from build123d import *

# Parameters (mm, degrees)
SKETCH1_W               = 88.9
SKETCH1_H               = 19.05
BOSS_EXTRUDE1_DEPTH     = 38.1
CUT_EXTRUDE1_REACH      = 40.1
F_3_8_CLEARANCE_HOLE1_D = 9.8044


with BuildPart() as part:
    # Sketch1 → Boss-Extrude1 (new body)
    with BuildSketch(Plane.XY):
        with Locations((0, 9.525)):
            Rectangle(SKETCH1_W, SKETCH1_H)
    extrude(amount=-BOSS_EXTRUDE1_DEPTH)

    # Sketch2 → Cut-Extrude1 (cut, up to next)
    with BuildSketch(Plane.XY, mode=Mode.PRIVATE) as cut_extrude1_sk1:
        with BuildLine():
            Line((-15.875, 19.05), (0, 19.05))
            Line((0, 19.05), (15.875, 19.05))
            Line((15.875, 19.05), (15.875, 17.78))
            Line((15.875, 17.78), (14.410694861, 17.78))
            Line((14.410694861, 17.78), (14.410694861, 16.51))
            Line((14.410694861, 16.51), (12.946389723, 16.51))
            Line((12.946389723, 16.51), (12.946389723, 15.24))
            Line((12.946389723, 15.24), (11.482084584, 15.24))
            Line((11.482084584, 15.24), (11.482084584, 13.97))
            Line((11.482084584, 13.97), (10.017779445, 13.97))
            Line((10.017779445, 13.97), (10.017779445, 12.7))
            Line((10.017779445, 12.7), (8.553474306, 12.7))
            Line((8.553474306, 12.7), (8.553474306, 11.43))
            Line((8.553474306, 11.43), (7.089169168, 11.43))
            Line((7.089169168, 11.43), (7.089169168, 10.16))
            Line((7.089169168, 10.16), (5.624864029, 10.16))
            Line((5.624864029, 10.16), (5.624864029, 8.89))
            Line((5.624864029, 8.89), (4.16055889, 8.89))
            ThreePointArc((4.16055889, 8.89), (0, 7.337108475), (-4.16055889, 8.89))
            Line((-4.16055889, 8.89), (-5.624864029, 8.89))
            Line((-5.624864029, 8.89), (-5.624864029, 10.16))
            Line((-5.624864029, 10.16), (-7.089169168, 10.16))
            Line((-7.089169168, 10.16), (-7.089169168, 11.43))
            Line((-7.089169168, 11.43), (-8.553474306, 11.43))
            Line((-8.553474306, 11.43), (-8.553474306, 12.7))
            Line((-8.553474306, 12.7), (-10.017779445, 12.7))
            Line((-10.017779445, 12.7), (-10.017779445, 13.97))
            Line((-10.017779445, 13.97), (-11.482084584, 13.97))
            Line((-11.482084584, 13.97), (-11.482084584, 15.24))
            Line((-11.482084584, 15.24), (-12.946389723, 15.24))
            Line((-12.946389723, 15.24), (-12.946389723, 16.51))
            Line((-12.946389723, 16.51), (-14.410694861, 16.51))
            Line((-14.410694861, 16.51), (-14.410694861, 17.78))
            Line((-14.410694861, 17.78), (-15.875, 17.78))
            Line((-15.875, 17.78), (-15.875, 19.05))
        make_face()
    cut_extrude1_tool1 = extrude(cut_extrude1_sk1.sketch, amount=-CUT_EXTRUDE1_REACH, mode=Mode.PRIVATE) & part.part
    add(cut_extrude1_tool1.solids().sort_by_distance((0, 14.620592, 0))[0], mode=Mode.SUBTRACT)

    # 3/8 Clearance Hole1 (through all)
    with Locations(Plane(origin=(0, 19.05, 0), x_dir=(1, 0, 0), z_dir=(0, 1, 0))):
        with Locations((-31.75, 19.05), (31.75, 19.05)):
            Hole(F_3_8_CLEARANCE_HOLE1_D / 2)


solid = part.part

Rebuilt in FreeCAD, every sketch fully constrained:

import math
import FreeCAD as App
import Part
import Sketcher

V = App.Vector
Q = App.Units.Quantity


def add_polygon(sketch, points):
    """Adds a closed chain of lines whose ends are joined by coincident constraints."""
    first, n = sketch.GeometryCount, len(points)
    for a, b in zip(points, points[1:] + points[:1]):
        sketch.addGeometry(Part.LineSegment(App.Vector(*a, 0), App.Vector(*b, 0)), False)
    for i in range(n):
        sketch.addConstraint(Sketcher.Constraint("Coincident", first + i, 2, first + (i + 1) % n, 1))

doc = App.newDocument("Part")
params = doc.addObject("Spreadsheet::Sheet", "Params")
for row, (alias, value) in enumerate([
    ("sketch1_width", "3.5 in"),
    ("sketch1_height", "0.75 in"),
    ("pad1_length", "1.5 in"),
    ("sketch2_radius", "0.25 in"),
    ("sketch2_width", "1.25 in"),
    ("sketch2_height", "0.05 in"),
    ("sketch3_diameter", "0.386 in"),
    ("hole_diameter", "0.386 in"),
], start=1):
    params.set(f"A{row}", alias)
    params.set(f"B{row}", "=" + value)
    params.setAlias(f"B{row}", alias)

body = doc.addObject("PartDesign::Body", "Body")

sketch1 = body.newObject("Sketcher::SketchObject", "Sketch")
sketch1.AttachmentSupport = (doc.getObject("XY_Plane"), [""])
sketch1.MapMode = "FlatFace"
add_polygon(sketch1, [(-44.45, 19.05), (-44.45, 0), (44.45, 0), (44.45, 19.05)])
sketch1.addConstraint([
    Sketcher.Constraint("Vertical", 0),
    Sketcher.Constraint("Horizontal", 1),
    Sketcher.Constraint("Vertical", 2),
    Sketcher.Constraint("Horizontal", 3),
    Sketcher.Constraint("Symmetric", 0, 2, 1, 2, -1, 1),
    Sketcher.Constraint("DistanceX", 1, 1, 1, 2, Q("3.5 in")),
    Sketcher.Constraint("DistanceY", 0, 2, 0, 1, Q("0.75 in")),
])
sketch1.setExpression("Constraints[9]", "Params.sketch1_width")
sketch1.setExpression("Constraints[10]", "Params.sketch1_height")
pad1 = body.newObject("PartDesign::Pad", "Pad")
pad1.Profile = sketch1
pad1.setExpression("Length", "Params.pad1_length")
pad1.Reversed = True

sketch2 = body.newObject("Sketcher::SketchObject", "Sketch001")
sketch2.AttachmentSupport = (doc.getObject("XY_Plane"), [""])
sketch2.MapMode = "FlatFace"
sketch2.addGeometry([
    Part.LineSegment(V(15.875, 19.05, 0), V(-15.875, 19.05, 0)),
    Part.LineSegment(V(-15.875, 19.05, 0), V(-15.875, 17.78, 0)),
    Part.LineSegment(V(-15.875, 17.78, 0), V(-14.410695, 17.78, 0)),
    Part.LineSegment(V(-14.410695, 17.78, 0), V(-14.410695, 16.51, 0)),
    Part.LineSegment(V(-14.410695, 16.51, 0), V(-12.94639, 16.51, 0)),
    Part.LineSegment(V(-12.94639, 16.51, 0), V(-12.94639, 15.24, 0)),
    Part.LineSegment(V(-12.94639, 15.24, 0), V(-11.482085, 15.24, 0)),
    Part.LineSegment(V(-11.482085, 15.24, 0), V(-11.482085, 13.97, 0)),
    Part.LineSegment(V(-11.482085, 13.97, 0), V(-10.017779, 13.97, 0)),
    Part.LineSegment(V(-10.017779, 13.97, 0), V(-10.017779, 12.7, 0)),
    Part.LineSegment(V(-10.017779, 12.7, 0), V(-8.553474, 12.7, 0)),
    Part.LineSegment(V(-8.553474, 12.7, 0), V(-8.553474, 11.43, 0)),
    Part.LineSegment(V(-8.553474, 11.43, 0), V(-7.089169, 11.43, 0)),
    Part.LineSegment(V(-7.089169, 11.43, 0), V(-7.089169, 10.16, 0)),
    Part.LineSegment(V(-7.089169, 10.16, 0), V(-5.624864, 10.16, 0)),
    Part.LineSegment(V(-5.624864, 10.16, 0), V(-5.624864, 8.89, 0)),
    Part.LineSegment(V(-5.624864, 8.89, 0), V(-4.160559, 8.89, 0)),
    Part.ArcOfCircle(Part.Circle(V(0, 13.687108, 0), V(0, 0, 1), 6.35), math.radians(-130.935281), math.radians(-49.064719)),
    Part.LineSegment(V(4.160559, 8.89, 0), V(5.624864, 8.89, 0)),
    Part.LineSegment(V(5.624864, 8.89, 0), V(5.624864, 10.16, 0)),
    Part.LineSegment(V(5.624864, 10.16, 0), V(7.089169, 10.16, 0)),
    Part.LineSegment(V(7.089169, 10.16, 0), V(7.089169, 11.43, 0)),
    Part.LineSegment(V(7.089169, 11.43, 0), V(8.553474, 11.43, 0)),
    Part.LineSegment(V(8.553474, 11.43, 0), V(8.553474, 12.7, 0)),
    Part.LineSegment(V(8.553474, 12.7, 0), V(10.017779, 12.7, 0)),
    Part.LineSegment(V(10.017779, 12.7, 0), V(10.017779, 13.97, 0)),
    Part.LineSegment(V(10.017779, 13.97, 0), V(11.482085, 13.97, 0)),
    Part.LineSegment(V(11.482085, 13.97, 0), V(11.482085, 15.24, 0)),
    Part.LineSegment(V(11.482085, 15.24, 0), V(12.94639, 15.24, 0)),
    Part.LineSegment(V(12.94639, 15.24, 0), V(12.94639, 16.51, 0)),
    Part.LineSegment(V(12.94639, 16.51, 0), V(14.410695, 16.51, 0)),
    Part.LineSegment(V(14.410695, 16.51, 0), V(14.410695, 17.78, 0)),
    Part.LineSegment(V(14.410695, 17.78, 0), V(15.875, 17.78, 0)),
    Part.LineSegment(V(15.875, 17.78, 0), V(15.875, 19.05, 0)),
], False)
sketch2.addConstraint([
    Sketcher.Constraint("Coincident", 0, 2, 1, 1),
    Sketcher.Constraint("Coincident", 1, 2, 2, 1),
    Sketcher.Constraint("Coincident", 2, 2, 3, 1),
    Sketcher.Constraint("Coincident", 3, 2, 4, 1),
    Sketcher.Constraint("Coincident", 4, 2, 5, 1),
    Sketcher.Constraint("Coincident", 5, 2, 6, 1),
    Sketcher.Constraint("Coincident", 6, 2, 7, 1),
    Sketcher.Constraint("Coincident", 7, 2, 8, 1),
    Sketcher.Constraint("Coincident", 8, 2, 9, 1),
    Sketcher.Constraint("Coincident", 9, 2, 10, 1),
    Sketcher.Constraint("Coincident", 10, 2, 11, 1),
    Sketcher.Constraint("Coincident", 11, 2, 12, 1),
    Sketcher.Constraint("Coincident", 12, 2, 13, 1),
    Sketcher.Constraint("Coincident", 13, 2, 14, 1),
    Sketcher.Constraint("Coincident", 14, 2, 15, 1),
    Sketcher.Constraint("Coincident", 15, 2, 16, 1),
    Sketcher.Constraint("Coincident", 16, 2, 17, 1),
    Sketcher.Constraint("Coincident", 17, 2, 18, 1),
    Sketcher.Constraint("Coincident", 18, 2, 19, 1),
    Sketcher.Constraint("Coincident", 19, 2, 20, 1),
    Sketcher.Constraint("Coincident", 20, 2, 21, 1),
    Sketcher.Constraint("Coincident", 21, 2, 22, 1),
    Sketcher.Constraint("Coincident", 22, 2, 23, 1),
    Sketcher.Constraint("Coincident", 23, 2, 24, 1),
    Sketcher.Constraint("Coincident", 24, 2, 25, 1),
    Sketcher.Constraint("Coincident", 25, 2, 26, 1),
    Sketcher.Constraint("Coincident", 26, 2, 27, 1),
    Sketcher.Constraint("Coincident", 27, 2, 28, 1),
    Sketcher.Constraint("Coincident", 28, 2, 29, 1),
    Sketcher.Constraint("Coincident", 29, 2, 30, 1),
    Sketcher.Constraint("Coincident", 30, 2, 31, 1),
    Sketcher.Constraint("Coincident", 31, 2, 32, 1),
    Sketcher.Constraint("Coincident", 32, 2, 33, 1),
    Sketcher.Constraint("Coincident", 33, 2, 0, 1),
    Sketcher.Constraint("Horizontal", 0),
    Sketcher.Constraint("Vertical", 1),
    Sketcher.Constraint("Horizontal", 2),
    Sketcher.Constraint("Vertical", 3),
    Sketcher.Constraint("Horizontal", 4),
    Sketcher.Constraint("Vertical", 5),
    Sketcher.Constraint("Horizontal", 6),
    Sketcher.Constraint("Vertical", 7),
    Sketcher.Constraint("Horizontal", 8),
    Sketcher.Constraint("Vertical", 9),
    Sketcher.Constraint("Horizontal", 10),
    Sketcher.Constraint("Vertical", 11),
    Sketcher.Constraint("Horizontal", 12),
    Sketcher.Constraint("Vertical", 13),
    Sketcher.Constraint("Horizontal", 14),
    Sketcher.Constraint("Vertical", 15),
    Sketcher.Constraint("Horizontal", 16),
    Sketcher.Constraint("Horizontal", 18),
    Sketcher.Constraint("Vertical", 19),
    Sketcher.Constraint("Horizontal", 20),
    Sketcher.Constraint("Vertical", 21),
    Sketcher.Constraint("Horizontal", 22),
    Sketcher.Constraint("Vertical", 23),
    Sketcher.Constraint("Horizontal", 24),
    Sketcher.Constraint("Vertical", 25),
    Sketcher.Constraint("Horizontal", 26),
    Sketcher.Constraint("Vertical", 27),
    Sketcher.Constraint("Horizontal", 28),
    Sketcher.Constraint("Vertical", 29),
    Sketcher.Constraint("Horizontal", 30),
    Sketcher.Constraint("Vertical", 31),
    Sketcher.Constraint("Horizontal", 32),
    Sketcher.Constraint("Vertical", 33),
    Sketcher.Constraint("Symmetric", 16, 2, 17, 2, -2),
    Sketcher.Constraint("Symmetric", 14, 2, 19, 2, -2),
    Sketcher.Constraint("Symmetric", 12, 2, 21, 2, -2),
    Sketcher.Constraint("Symmetric", 10, 2, 23, 2, -2),
    Sketcher.Constraint("Symmetric", 8, 2, 25, 2, -2),
    Sketcher.Constraint("Symmetric", 6, 2, 27, 2, -2),
    Sketcher.Constraint("Symmetric", 4, 2, 29, 2, -2),
    Sketcher.Constraint("Symmetric", 2, 2, 31, 2, -2),
    Sketcher.Constraint("Equal", 2, 4),
    Sketcher.Constraint("Equal", 4, 6),
    Sketcher.Constraint("Equal", 6, 8),
    Sketcher.Constraint("Equal", 8, 10),
    Sketcher.Constraint("Equal", 10, 12),
    Sketcher.Constraint("Equal", 12, 14),
    Sketcher.Constraint("Equal", 14, 16),
    Sketcher.Constraint("Equal", 30, 32),
    Sketcher.Constraint("Equal", 1, 3),
    Sketcher.Constraint("Equal", 3, 5),
    Sketcher.Constraint("Equal", 5, 7),
    Sketcher.Constraint("Equal", 7, 9),
    Sketcher.Constraint("Equal", 9, 11),
    Sketcher.Constraint("Equal", 11, 13),
    Sketcher.Constraint("Equal", 13, 15),
    Sketcher.Constraint("Radius", 17, Q("0.25 in")),
    Sketcher.Constraint("DistanceX", 0, 2, 0, 1, Q("1.25 in")),
    Sketcher.Constraint("DistanceY", 1, 2, 1, 1, Q("0.05 in")),
    Sketcher.Constraint("DistanceY", -1, 1, 1, 2, Q("0.7 in")),
    Sketcher.Constraint("DistanceX", 2, 1, 2, 2, Q("1.464305 mm")),
])
sketch2.setExpression("Constraints[90]", "Params.sketch2_radius")
sketch2.setExpression("Constraints[91]", "Params.sketch2_width")
sketch2.setExpression("Constraints[92]", "Params.sketch2_height")
pocket1 = body.newObject("PartDesign::Pocket", "Pocket")
pocket1.Profile = sketch2
pocket1.Type = "UpToFirst"

sketch3 = body.newObject("Sketcher::SketchObject", "Sketch002")
sketch3.AttachmentSupport = (doc.getObject("XZ_Plane"), [""])
sketch3.MapMode = "FlatFace"
sketch3.AttachmentOffset = App.Placement(V(0, 0, -0.75 * 25.4), App.Rotation())
sketch3.addGeometry([
    Part.Circle(V(-31.75, -19.05, 0), V(0, 0, 1), 4.9022),
    Part.Circle(V(31.75, -19.05, 0), V(0, 0, 1), 4.9022),
], False)
sketch3.addConstraint([
    Sketcher.Constraint("Equal", 0, 1),
    Sketcher.Constraint("Symmetric", 0, 3, 1, 3, -2),
    Sketcher.Constraint("Diameter", 0, Q("0.386 in")),
    Sketcher.Constraint("DistanceX", 0, 3, 1, 3, Q("2.5 in")),
    Sketcher.Constraint("DistanceY", 0, 3, -1, 1, Q("0.75 in")),
])
sketch3.setExpression("Constraints[2]", "Params.sketch3_diameter")
doc.recompute()
hole = body.newObject("PartDesign::Hole", "Hole")
hole.Profile = sketch3
hole.ThreadType = "None"
hole.setExpression("Diameter", "Params.hole_diameter")
hole.DepthType = "ThroughAll"
hole.Reversed = True

doc.recompute()
